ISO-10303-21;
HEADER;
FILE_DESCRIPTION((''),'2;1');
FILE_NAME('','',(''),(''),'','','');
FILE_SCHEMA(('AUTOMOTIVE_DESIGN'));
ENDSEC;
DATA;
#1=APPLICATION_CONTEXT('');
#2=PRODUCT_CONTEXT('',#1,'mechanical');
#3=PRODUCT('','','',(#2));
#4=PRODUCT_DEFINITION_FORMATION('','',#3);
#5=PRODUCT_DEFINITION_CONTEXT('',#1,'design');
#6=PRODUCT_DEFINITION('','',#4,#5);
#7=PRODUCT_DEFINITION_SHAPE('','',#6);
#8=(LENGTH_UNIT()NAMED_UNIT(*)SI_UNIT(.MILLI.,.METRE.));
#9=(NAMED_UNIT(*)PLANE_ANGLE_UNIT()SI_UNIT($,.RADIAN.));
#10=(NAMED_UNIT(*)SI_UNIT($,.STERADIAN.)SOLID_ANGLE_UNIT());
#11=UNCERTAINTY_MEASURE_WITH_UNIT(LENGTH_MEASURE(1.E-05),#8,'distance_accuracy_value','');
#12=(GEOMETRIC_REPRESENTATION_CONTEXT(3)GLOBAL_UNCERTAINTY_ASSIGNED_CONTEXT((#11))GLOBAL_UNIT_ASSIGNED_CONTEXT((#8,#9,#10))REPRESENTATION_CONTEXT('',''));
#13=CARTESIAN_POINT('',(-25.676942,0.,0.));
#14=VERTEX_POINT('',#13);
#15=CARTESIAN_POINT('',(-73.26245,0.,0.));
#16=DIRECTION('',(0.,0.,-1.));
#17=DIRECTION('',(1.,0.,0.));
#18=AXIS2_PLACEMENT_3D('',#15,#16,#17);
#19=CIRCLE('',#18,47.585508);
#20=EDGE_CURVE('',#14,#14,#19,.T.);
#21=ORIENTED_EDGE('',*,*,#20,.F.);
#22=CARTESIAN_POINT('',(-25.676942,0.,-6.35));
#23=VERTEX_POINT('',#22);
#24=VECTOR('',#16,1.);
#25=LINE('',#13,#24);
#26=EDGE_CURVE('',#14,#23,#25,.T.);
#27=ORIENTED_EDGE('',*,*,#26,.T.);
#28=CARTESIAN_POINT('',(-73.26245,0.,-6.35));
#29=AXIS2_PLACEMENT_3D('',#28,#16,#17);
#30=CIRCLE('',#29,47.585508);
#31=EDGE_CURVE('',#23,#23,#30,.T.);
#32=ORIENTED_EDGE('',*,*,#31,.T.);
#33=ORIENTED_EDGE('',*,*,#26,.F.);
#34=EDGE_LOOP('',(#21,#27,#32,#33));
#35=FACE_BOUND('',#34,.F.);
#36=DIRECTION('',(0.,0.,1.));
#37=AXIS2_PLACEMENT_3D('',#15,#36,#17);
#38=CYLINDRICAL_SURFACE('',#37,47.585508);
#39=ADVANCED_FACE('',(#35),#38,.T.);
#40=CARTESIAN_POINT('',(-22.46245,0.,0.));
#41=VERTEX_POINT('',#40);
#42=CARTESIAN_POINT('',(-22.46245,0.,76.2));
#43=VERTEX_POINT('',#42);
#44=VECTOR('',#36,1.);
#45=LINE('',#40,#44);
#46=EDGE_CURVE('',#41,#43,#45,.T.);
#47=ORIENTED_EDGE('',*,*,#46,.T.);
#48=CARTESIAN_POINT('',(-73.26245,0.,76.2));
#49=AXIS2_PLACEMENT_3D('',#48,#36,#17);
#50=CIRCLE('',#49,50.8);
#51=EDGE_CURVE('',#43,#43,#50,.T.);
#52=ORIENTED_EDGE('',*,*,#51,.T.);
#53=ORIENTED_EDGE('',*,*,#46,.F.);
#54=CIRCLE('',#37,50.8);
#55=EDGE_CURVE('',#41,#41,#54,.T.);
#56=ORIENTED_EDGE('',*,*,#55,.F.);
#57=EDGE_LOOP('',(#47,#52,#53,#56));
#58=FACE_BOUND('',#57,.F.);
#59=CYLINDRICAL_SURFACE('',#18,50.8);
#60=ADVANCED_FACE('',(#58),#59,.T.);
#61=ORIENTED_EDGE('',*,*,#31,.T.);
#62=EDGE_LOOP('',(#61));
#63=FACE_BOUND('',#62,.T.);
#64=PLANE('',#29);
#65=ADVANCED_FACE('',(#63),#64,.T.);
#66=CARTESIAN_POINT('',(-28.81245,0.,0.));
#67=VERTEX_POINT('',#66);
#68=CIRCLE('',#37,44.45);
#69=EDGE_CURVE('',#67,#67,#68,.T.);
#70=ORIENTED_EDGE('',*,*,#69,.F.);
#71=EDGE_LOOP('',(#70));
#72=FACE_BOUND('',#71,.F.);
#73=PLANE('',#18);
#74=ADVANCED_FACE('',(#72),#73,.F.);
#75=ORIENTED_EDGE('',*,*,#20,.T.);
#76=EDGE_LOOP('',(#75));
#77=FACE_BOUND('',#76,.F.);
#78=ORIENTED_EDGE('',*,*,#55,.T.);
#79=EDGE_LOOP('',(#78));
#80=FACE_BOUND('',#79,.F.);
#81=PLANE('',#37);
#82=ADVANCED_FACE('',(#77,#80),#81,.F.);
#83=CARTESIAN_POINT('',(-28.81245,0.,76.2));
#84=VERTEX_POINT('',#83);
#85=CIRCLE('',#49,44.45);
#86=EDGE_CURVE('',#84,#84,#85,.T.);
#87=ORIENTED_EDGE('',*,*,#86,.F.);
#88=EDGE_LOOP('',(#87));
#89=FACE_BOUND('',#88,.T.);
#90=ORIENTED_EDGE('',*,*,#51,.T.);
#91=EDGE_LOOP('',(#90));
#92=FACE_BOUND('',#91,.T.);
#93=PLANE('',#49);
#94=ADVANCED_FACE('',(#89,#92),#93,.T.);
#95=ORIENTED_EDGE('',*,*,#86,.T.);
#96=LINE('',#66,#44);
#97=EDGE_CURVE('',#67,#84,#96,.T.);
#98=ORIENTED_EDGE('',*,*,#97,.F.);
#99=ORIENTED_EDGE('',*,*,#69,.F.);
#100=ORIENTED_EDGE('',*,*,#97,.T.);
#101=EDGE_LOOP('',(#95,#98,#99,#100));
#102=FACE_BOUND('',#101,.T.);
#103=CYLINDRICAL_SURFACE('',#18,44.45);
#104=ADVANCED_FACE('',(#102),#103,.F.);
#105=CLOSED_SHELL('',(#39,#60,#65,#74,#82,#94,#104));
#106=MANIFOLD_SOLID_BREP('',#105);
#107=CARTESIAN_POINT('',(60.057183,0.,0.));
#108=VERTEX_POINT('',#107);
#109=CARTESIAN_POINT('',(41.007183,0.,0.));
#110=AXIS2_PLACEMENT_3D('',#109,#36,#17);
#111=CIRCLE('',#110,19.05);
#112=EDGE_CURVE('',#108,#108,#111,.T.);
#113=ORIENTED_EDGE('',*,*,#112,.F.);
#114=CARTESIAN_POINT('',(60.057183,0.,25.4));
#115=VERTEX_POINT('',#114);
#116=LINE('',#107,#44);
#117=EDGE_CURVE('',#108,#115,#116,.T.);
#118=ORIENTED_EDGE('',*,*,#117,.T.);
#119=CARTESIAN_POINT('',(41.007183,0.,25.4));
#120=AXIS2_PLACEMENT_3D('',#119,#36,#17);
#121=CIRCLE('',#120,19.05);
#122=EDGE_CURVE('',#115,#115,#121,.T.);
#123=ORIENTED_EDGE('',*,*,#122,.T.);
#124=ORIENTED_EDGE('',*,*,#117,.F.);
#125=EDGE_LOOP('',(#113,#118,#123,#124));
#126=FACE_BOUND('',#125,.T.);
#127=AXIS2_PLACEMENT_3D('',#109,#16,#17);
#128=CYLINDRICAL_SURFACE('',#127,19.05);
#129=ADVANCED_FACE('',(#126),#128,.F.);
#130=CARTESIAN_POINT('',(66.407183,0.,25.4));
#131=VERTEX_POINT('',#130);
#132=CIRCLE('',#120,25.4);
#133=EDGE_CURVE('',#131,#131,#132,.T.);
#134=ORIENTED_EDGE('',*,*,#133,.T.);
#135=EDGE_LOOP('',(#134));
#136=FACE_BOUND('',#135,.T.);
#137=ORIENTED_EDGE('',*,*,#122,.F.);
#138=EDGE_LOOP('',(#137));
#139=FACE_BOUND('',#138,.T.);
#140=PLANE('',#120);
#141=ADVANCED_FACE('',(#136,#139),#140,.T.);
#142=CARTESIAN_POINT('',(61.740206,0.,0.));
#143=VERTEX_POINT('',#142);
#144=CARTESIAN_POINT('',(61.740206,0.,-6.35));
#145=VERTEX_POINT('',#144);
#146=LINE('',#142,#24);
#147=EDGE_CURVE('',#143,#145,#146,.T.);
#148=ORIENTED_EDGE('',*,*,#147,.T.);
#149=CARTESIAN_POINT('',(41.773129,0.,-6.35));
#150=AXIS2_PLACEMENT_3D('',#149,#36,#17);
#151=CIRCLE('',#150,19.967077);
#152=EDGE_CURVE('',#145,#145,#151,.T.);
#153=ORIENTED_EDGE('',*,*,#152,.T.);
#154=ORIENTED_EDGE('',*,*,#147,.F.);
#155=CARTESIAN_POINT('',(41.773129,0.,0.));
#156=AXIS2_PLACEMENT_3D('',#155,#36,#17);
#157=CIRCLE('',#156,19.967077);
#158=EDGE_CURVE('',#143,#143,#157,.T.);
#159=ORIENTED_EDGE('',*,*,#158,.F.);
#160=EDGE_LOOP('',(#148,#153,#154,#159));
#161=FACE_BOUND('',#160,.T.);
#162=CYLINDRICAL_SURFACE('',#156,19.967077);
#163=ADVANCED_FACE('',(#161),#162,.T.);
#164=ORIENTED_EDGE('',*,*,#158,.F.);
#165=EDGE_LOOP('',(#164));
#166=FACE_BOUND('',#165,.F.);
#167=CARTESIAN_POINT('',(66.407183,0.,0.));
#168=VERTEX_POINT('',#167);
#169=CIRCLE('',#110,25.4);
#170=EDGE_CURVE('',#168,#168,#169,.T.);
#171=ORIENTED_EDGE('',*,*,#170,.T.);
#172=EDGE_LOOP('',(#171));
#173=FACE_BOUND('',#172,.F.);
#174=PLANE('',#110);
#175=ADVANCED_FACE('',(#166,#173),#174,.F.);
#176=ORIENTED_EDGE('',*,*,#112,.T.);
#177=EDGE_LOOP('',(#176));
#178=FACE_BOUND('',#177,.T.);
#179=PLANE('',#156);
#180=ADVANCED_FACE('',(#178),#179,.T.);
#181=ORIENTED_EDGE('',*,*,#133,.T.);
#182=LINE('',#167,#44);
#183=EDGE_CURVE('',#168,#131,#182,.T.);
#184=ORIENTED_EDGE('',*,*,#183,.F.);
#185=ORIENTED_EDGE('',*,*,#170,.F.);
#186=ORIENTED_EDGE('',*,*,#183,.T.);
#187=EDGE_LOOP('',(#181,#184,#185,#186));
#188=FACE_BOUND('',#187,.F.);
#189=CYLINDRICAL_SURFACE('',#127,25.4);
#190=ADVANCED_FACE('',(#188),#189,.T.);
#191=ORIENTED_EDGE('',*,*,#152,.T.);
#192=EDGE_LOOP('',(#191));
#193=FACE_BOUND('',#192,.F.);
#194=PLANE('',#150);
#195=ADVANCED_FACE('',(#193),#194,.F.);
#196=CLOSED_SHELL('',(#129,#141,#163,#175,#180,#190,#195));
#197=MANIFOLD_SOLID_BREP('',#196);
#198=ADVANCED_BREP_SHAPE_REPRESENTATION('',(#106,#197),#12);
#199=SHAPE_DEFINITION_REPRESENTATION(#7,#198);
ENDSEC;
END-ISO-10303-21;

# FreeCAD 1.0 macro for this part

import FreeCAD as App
import Part
import Sketcher
Q = App.Units.Quantity

doc = App.newDocument("Part")
body = doc.addObject("PartDesign::Body", "Body")

# Sketch on XY plane
sketch1 = doc.addObject("Sketcher::SketchObject", "Sketch")
body.addObject(sketch1)
sketch1.AttachmentSupport = (doc.XY_Plane, [""])
sketch1.MapMode = "FlatFace"
sketch1.addGeometry([
    Part.Circle(App.Vector(-73.26245, 0, 0), App.Vector(0, 0, 1), 50.8),
    Part.Circle(App.Vector(-73.26245, 0, 0), App.Vector(0, 0, 1), 44.45),
], False)
sketch1.addConstraint([
    Sketcher.Constraint("Coincident", 1, 3, 0, 3),
    Sketcher.Constraint("PointOnObject", 0, 3, -1),
    Sketcher.Constraint("Diameter", 0, Q("4 in")),
    Sketcher.Constraint("Diameter", 1, Q("3.5 in")),
    Sketcher.Constraint("DistanceX", 0, 3, -1, 1, 73.26245),
])
pad1 = doc.addObject("PartDesign::Pad", "Pad")
body.addObject(pad1)
pad1.Profile = sketch1
pad1.Length = Q("3 in")

# Sketch on XY plane
sketch2 = doc.addObject("Sketcher::SketchObject", "Sketch001")
body.addObject(sketch2)
sketch2.AttachmentSupport = (doc.XY_Plane, [""])
sketch2.MapMode = "FlatFace"
sketch2.addGeometry(Part.Circle(App.Vector(-73.26245, 0, 0), App.Vector(0, 0, 1), 47.585508), False)
sketch2.addConstraint([
    Sketcher.Constraint("PointOnObject", 0, 3, -1),
    Sketcher.Constraint("Diameter", 0, 95.171016),
    Sketcher.Constraint("DistanceX", 0, 3, -1, 1, 73.26245),
])
pad2 = doc.addObject("PartDesign::Pad", "Pad001")
body.addObject(pad2)
pad2.Profile = sketch2
pad2.Length = Q("0.25 in")
pad2.Reversed = True
body2 = doc.addObject("PartDesign::Body", "Body001")

# Sketch on XY plane
sketch3 = doc.addObject("Sketcher::SketchObject", "Sketch002")
body2.addObject(sketch3)
sketch3.AttachmentSupport = (doc.getObject("XY_Plane001"), [""])
sketch3.MapMode = "FlatFace"
sketch3.addGeometry([
    Part.Circle(App.Vector(41.007183, 0, 0), App.Vector(0, 0, 1), 25.4),
    Part.Circle(App.Vector(41.007183, 0, 0), App.Vector(0, 0, 1), 19.05),
], False)
sketch3.addConstraint([
    Sketcher.Constraint("Coincident", 1, 3, 0, 3),
    Sketcher.Constraint("PointOnObject", 0, 3, -1),
    Sketcher.Constraint("Diameter", 0, Q("2 in")),
    Sketcher.Constraint("Diameter", 1, Q("1.5 in")),
    Sketcher.Constraint("DistanceX", -1, 1, 0, 3, 41.007183),
])
pad3 = doc.addObject("PartDesign::Pad", "Pad002")
body2.addObject(pad3)
pad3.Profile = sketch3
pad3.Length = Q("1 in")

# Sketch on XY plane
sketch4 = doc.addObject("Sketcher::SketchObject", "Sketch003")
body2.addObject(sketch4)
sketch4.AttachmentSupport = (doc.getObject("XY_Plane001"), [""])
sketch4.MapMode = "FlatFace"
sketch4.addGeometry(Part.Circle(App.Vector(41.773129, 0, 0), App.Vector(0, 0, 1), 19.967077), False)
sketch4.addConstraint([
    Sketcher.Constraint("PointOnObject", 0, 3, -1),
    Sketcher.Constraint("Diameter", 0, 39.934154),
    Sketcher.Constraint("DistanceX", -1, 1, 0, 3, 41.773129),
])
pad4 = doc.addObject("PartDesign::Pad", "Pad003")
body2.addObject(pad4)
pad4.Profile = sketch4
pad4.Length = Q("0.25 in")
pad4.Reversed = True

doc.recompute()
